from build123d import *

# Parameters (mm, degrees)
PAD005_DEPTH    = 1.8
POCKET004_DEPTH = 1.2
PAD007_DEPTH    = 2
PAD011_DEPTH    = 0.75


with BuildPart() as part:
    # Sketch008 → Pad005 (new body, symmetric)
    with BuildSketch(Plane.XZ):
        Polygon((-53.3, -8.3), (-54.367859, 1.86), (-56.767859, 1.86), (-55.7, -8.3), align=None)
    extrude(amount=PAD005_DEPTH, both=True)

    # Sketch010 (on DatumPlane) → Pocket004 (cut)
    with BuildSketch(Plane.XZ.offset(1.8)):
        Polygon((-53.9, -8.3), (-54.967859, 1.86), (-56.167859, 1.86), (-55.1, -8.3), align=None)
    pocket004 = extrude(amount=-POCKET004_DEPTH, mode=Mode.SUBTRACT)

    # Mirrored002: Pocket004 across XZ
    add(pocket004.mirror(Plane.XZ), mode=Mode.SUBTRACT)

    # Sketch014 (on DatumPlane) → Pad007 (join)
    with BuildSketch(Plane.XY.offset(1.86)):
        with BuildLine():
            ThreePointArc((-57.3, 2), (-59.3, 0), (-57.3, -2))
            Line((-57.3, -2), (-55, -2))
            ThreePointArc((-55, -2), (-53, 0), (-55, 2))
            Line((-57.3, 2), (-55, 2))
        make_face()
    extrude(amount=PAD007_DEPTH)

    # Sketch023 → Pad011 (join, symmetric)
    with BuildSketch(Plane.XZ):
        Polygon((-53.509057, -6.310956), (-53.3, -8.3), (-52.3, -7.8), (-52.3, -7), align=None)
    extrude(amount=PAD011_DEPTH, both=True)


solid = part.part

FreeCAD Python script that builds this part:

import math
import FreeCAD as App
import Part
import Sketcher

V = App.Vector
Q = App.Units.Quantity


def add_polygon(sketch, points):
    """Adds a closed chain of lines whose ends are joined by coincident constraints."""
    first, n = sketch.GeometryCount, len(points)
    for a, b in zip(points, points[1:] + points[:1]):
        sketch.addGeometry(Part.LineSegment(App.Vector(*a, 0), App.Vector(*b, 0)), False)
    for i in range(n):
        sketch.addConstraint(Sketcher.Constraint("Coincident", first + i, 2, first + (i + 1) % n, 1))

doc = App.newDocument("Part")
body = doc.addObject("PartDesign::Body", "Body")

# Sketch on XZ plane
sketch1 = body.newObject("Sketcher::SketchObject", "Sketch")
sketch1.AttachmentSupport = (doc.getObject("XZ_Plane"), [""])
sketch1.MapMode = "FlatFace"
add_polygon(sketch1, [(-53.3, -8.3), (-54.4, 1.9), (-56.8, 1.9), (-55.7, -8.3)])  # lines 0-3
sketch1.addConstraint([
    Sketcher.Constraint("Horizontal", 1),
    Sketcher.Constraint("Horizontal", 3),
    Sketcher.Constraint("Parallel", 0, 2),
    Sketcher.Constraint("Angle", 0, Q("96 deg")),
    Sketcher.Constraint("DistanceX", 1, 2, 1, 1, 2.4),
    Sketcher.Constraint("DistanceX", 2, 2, -1, 1, 55.7),
    Sketcher.Constraint("DistanceY", 2, 2, -1, 1, 8.3),
    Sketcher.Constraint("DistanceY", -1, 1, 0, 2, 1.86),
])
pad1 = body.newObject("PartDesign::Pad", "Pad")
pad1.Profile = sketch1
pad1.Length = 3.6
pad1.Midplane = True

# Sketch on XZ plane
sketch2 = body.newObject("Sketcher::SketchObject", "Sketch001")
sketch2.AttachmentSupport = (doc.getObject("XZ_Plane"), [""])
sketch2.MapMode = "FlatFace"
sketch2.AttachmentOffset = App.Placement(V(0, 0, 1.8), App.Rotation())
add_polygon(sketch2, [(-53.9, -8.3), (-55, 1.9), (-56.2, 1.9), (-55.1, -8.3)])  # lines 0-3
sketch2.addConstraint([
    Sketcher.Constraint("Horizontal", 1),
    Sketcher.Constraint("Horizontal", 3),
    Sketcher.Constraint("Parallel", 0, 2),
    Sketcher.Constraint("Angle", 0, Q("96 deg")),
    Sketcher.Constraint("DistanceX", 1, 2, 1, 1, 1.2),
    Sketcher.Constraint("DistanceX", 2, 2, -1, 1, 55.1),
    Sketcher.Constraint("DistanceY", 2, 2, -1, 1, 8.3),
    Sketcher.Constraint("DistanceY", -1, 1, 0, 2, 1.86),
])
pocket1 = body.newObject("PartDesign::Pocket", "Pocket")
pocket1.Profile = sketch2
pocket1.Length = 1.2
doc.recompute()

mirrored = body.newObject("PartDesign::Mirrored", "Mirrored")
mirrored.Originals = [pocket1]
mirrored.MirrorPlane = (doc.getObject("XZ_Plane"), [""])
body.Tip = mirrored

# Sketch on XY plane
sketch3 = body.newObject("Sketcher::SketchObject", "Sketch002")
sketch3.AttachmentSupport = (doc.getObject("XY_Plane"), [""])
sketch3.MapMode = "FlatFace"
sketch3.AttachmentOffset = App.Placement(V(0, 0, 1.86), App.Rotation())
sketch3.addGeometry([
    Part.ArcOfCircle(Part.Circle(V(-57.3, 0, 0), V(0, 0, 1), 2), math.radians(90), math.radians(270)),
    Part.LineSegment(V(-57.3, -2, 0), V(-55, -2, 0)),
    Part.ArcOfCircle(Part.Circle(V(-55, 0, 0), V(0, 0, 1), 2), math.radians(-90), math.radians(90)),
    Part.LineSegment(V(-55, 2, 0), V(-57.3, 2, 0)),
], False)
sketch3.addConstraint([
    Sketcher.Constraint("Tangent", 0, 2, 1, 1),
    Sketcher.Constraint("Tangent", 1, 2, 2, 1),
    Sketcher.Constraint("Tangent", 2, 2, 3, 1),
    Sketcher.Constraint("Tangent", 3, 2, 0, 1),
    Sketcher.Constraint("Horizontal", 1),
    Sketcher.Constraint("Horizontal", 3),
    Sketcher.Constraint("PointOnObject", 0, 3, -1),
    Sketcher.Constraint("Radius", 0, 2.0),
    Sketcher.Constraint("DistanceX", 1, 1, 1, 2, 2.3),
    Sketcher.Constraint("DistanceX", 2, 3, -1, 1, 55.0),
])
pad2 = body.newObject("PartDesign::Pad", "Pad001")
pad2.Profile = sketch3
pad2.Length = 2

# Sketch on XZ plane
sketch4 = body.newObject("Sketcher::SketchObject", "Sketch003")
sketch4.AttachmentSupport = (doc.getObject("XZ_Plane"), [""])
sketch4.MapMode = "FlatFace"
add_polygon(sketch4, [(-53.5, -6.3), (-53.3, -8.3), (-52.3, -7.8), (-52.3, -7)])  # lines 0-3
sketch4.addConstraint([
    Sketcher.Constraint("Vertical", 2),
    Sketcher.Constraint("Angle", 0, Q("-83.999999 deg")),
    Sketcher.Constraint("Distance", 0, 2.0),
    Sketcher.Constraint("DistanceY", 2, 1, 2, 2, 0.8),
    Sketcher.Constraint("DistanceY", 2, 2, -1, 1, 7.0),
    Sketcher.Constraint("DistanceX", 0, 2, 1, 2, 1.0),
    Sketcher.Constraint("DistanceX", 0, 2, -1, 1, 53.3),
    Sketcher.Constraint("DistanceY", 0, 2, -1, 1, 8.3),
])
pad3 = body.newObject("PartDesign::Pad", "Pad002")
pad3.Profile = sketch4
pad3.Length = 1.5
pad3.Midplane = True

doc.recompute()
